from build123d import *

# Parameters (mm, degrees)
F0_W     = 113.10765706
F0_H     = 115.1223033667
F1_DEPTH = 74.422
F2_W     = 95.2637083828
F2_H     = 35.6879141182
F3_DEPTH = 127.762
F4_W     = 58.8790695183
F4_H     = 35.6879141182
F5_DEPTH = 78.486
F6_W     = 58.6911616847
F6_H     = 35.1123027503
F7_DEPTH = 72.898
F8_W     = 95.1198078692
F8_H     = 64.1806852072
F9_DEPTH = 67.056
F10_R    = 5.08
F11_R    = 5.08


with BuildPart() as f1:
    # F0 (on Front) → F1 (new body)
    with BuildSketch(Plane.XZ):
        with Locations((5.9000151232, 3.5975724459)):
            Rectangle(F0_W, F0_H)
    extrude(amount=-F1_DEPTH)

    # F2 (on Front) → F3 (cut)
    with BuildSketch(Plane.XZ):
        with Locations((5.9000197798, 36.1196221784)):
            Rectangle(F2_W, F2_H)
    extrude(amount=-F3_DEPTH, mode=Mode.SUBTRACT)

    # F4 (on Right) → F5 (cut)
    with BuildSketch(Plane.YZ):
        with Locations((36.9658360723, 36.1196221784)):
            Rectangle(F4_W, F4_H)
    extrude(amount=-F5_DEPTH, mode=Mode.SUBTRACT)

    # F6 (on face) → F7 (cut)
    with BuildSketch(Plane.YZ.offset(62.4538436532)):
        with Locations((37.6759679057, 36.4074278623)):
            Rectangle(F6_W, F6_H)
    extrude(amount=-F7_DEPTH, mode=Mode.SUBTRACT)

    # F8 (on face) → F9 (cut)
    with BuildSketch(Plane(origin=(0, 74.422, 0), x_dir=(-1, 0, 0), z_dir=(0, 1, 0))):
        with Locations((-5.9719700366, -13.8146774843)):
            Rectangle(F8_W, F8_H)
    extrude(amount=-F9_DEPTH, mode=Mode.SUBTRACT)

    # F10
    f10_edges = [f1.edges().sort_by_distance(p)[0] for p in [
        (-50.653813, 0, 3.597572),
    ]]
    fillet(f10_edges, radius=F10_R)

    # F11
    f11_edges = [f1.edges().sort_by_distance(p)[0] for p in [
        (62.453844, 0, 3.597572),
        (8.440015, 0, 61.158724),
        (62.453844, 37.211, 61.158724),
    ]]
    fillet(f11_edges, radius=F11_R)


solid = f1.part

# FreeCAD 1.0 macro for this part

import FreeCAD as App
import Part
import Sketcher

V = App.Vector
Q = App.Units.Quantity


def edges_at(feature, points):
    """Names of the edges that pass closest to the given points."""
    edges = feature.Shape.Edges
    near = lambda p: min(range(len(edges)), key=lambda i: edges[i].distToShape(Part.Vertex(*p))[0])
    return sorted({f"Edge{near(p) + 1}" for p in points})


def add_polygon(sketch, points):
    """Adds a closed chain of lines whose ends are joined by coincident constraints."""
    first, n = sketch.GeometryCount, len(points)
    for a, b in zip(points, points[1:] + points[:1]):
        sketch.addGeometry(Part.LineSegment(App.Vector(*a, 0), App.Vector(*b, 0)), False)
    for i in range(n):
        sketch.addConstraint(Sketcher.Constraint("Coincident", first + i, 2, first + (i + 1) % n, 1))

doc = App.newDocument("Part")
params = doc.addObject("Spreadsheet::Sheet", "Params")
for row, (alias, value) in enumerate([
    ("pad1_length", "2.93 in"),
    ("pocket1_length", "5.03 in"),
    ("pocket2_length", "3.09 in"),
    ("pocket3_length", "2.87 in"),
    ("pocket4_length", "2.64 in"),
    ("fillet_radius", "0.2 in"),
    ("fillet2_radius", "0.2 in"),
], start=1):
    params.set(f"A{row}", alias)
    params.set(f"B{row}", "=" + value)
    params.setAlias(f"B{row}", alias)

body = doc.addObject("PartDesign::Body", "Body")

# Sketch on XZ plane
sketch1 = body.newObject("Sketcher::SketchObject", "Sketch")
sketch1.AttachmentSupport = (doc.getObject("XZ_Plane"), [""])
sketch1.MapMode = "FlatFace"
add_polygon(sketch1, [(-51, 61), (-51, -54), (62, -54), (62, 61)])  # lines 0-3
sketch1.addConstraint(Sketcher.Constraint("Vertical", 0))
sketch1.addConstraint(Sketcher.Constraint("Horizontal", 1))
sketch1.addConstraint(Sketcher.Constraint("Vertical", 2))
sketch1.addConstraint(Sketcher.Constraint("Horizontal", 3))
sketch1.addConstraint(Sketcher.Constraint("DistanceX", 1, 1, 1, 2, Q("113.107657 mm")))
sketch1.addConstraint(Sketcher.Constraint("DistanceY", 0, 2, 0, 1, Q("115.122303 mm")))
sketch1.addConstraint(Sketcher.Constraint("DistanceY", 0, 2, -1, 1, Q("53.963579 mm")))
sketch1.addConstraint(Sketcher.Constraint("DistanceX", 0, 2, -1, 1, Q("50.653813 mm")))
pad1 = body.newObject("PartDesign::Pad", "Pad")
pad1.Profile = sketch1
pad1.setExpression("Length", "Params.pad1_length")
pad1.Reversed = True

# Sketch on XZ plane
sketch2 = body.newObject("Sketcher::SketchObject", "Sketch001")
sketch2.AttachmentSupport = (doc.getObject("XZ_Plane"), [""])
sketch2.MapMode = "FlatFace"
add_polygon(sketch2, [(-42, 54), (-42, 18), (54, 18), (54, 54)])  # lines 0-3
sketch2.addConstraint(Sketcher.Constraint("Vertical", 0))
sketch2.addConstraint(Sketcher.Constraint("Horizontal", 1))
sketch2.addConstraint(Sketcher.Constraint("Vertical", 2))
sketch2.addConstraint(Sketcher.Constraint("Horizontal", 3))
sketch2.addConstraint(Sketcher.Constraint("DistanceX", 1, 1, 1, 2, Q("95.263708 mm")))
sketch2.addConstraint(Sketcher.Constraint("DistanceY", 0, 2, 0, 1, Q("35.687914 mm")))
sketch2.addConstraint(Sketcher.Constraint("DistanceY", -1, 1, 2, 2, Q("53.963579 mm")))
sketch2.addConstraint(Sketcher.Constraint("DistanceX", 0, 2, -1, 1, Q("41.731834 mm")))
pocket1 = body.newObject("PartDesign::Pocket", "Pocket")
pocket1.Profile = sketch2
pocket1.setExpression("Length", "Params.pocket1_length")

# Sketch on YZ plane
sketch3 = body.newObject("Sketcher::SketchObject", "Sketch002")
sketch3.AttachmentSupport = (doc.getObject("YZ_Plane"), [""])
sketch3.MapMode = "FlatFace"
add_polygon(sketch3, [(8, 54), (8, 18), (66, 18), (66, 54)])  # lines 0-3
sketch3.addConstraint(Sketcher.Constraint("Vertical", 0))
sketch3.addConstraint(Sketcher.Constraint("Horizontal", 1))
sketch3.addConstraint(Sketcher.Constraint("Vertical", 2))
sketch3.addConstraint(Sketcher.Constraint("Horizontal", 3))
sketch3.addConstraint(Sketcher.Constraint("DistanceX", 1, 1, 1, 2, Q("58.87907 mm")))
sketch3.addConstraint(Sketcher.Constraint("DistanceX", -1, 1, 0, 2, Q("7.526301 mm")))
sketch3.addConstraint(Sketcher.Constraint("DistanceY", 0, 2, 0, 1, Q("35.687914 mm")))
sketch3.addConstraint(Sketcher.Constraint("DistanceY", -1, 1, 2, 2, Q("53.963579 mm")))
pocket2 = body.newObject("PartDesign::Pocket", "Pocket001")
pocket2.Profile = sketch3
pocket2.setExpression("Length", "Params.pocket2_length")

# Sketch on YZ plane
sketch4 = body.newObject("Sketcher::SketchObject", "Sketch003")
sketch4.AttachmentSupport = (doc.getObject("YZ_Plane"), [""])
sketch4.MapMode = "FlatFace"
sketch4.AttachmentOffset = App.Placement(V(0, 0, 62.453844), App.Rotation())
add_polygon(sketch4, [(8, 54), (8, 19), (67, 19), (67, 54)])  # lines 0-3
sketch4.addConstraint(Sketcher.Constraint("Vertical", 0))
sketch4.addConstraint(Sketcher.Constraint("Horizontal", 1))
sketch4.addConstraint(Sketcher.Constraint("Vertical", 2))
sketch4.addConstraint(Sketcher.Constraint("Horizontal", 3))
sketch4.addConstraint(Sketcher.Constraint("DistanceX", 1, 1, 1, 2, Q("58.691162 mm")))
sketch4.addConstraint(Sketcher.Constraint("DistanceY", 0, 2, 0, 1, Q("35.112303 mm")))
sketch4.addConstraint(Sketcher.Constraint("DistanceX", -1, 1, 1, 2, Q("67.021549 mm")))
sketch4.addConstraint(Sketcher.Constraint("DistanceY", -1, 1, 2, 2, Q("53.963579 mm")))
pocket3 = body.newObject("PartDesign::Pocket", "Pocket002")
pocket3.Profile = sketch4
pocket3.setExpression("Length", "Params.pocket3_length")

# Sketch on XZ plane
sketch5 = body.newObject("Sketcher::SketchObject", "Sketch004")
sketch5.AttachmentSupport = (doc.getObject("XZ_Plane"), [""])
sketch5.MapMode = "FlatFace"
sketch5.AttachmentOffset = App.Placement(V(0, 0, -2.93 * 25.4), App.Rotation())
add_polygon(sketch5, [(54, 18), (54, -46), (-42, -46), (-42, 18)])  # lines 0-3
sketch5.addConstraint(Sketcher.Constraint("Vertical", 0))
sketch5.addConstraint(Sketcher.Constraint("Horizontal", 1))
sketch5.addConstraint(Sketcher.Constraint("Vertical", 2))
sketch5.addConstraint(Sketcher.Constraint("Horizontal", 3))
sketch5.addConstraint(Sketcher.Constraint("DistanceX", 1, 2, 1, 1, Q("95.119808 mm")))
sketch5.addConstraint(Sketcher.Constraint("DistanceY", 0, 2, 0, 1, Q("64.180685 mm")))
sketch5.addConstraint(Sketcher.Constraint("DistanceY", 0, 2, -1, 1, Q("45.90502 mm")))
sketch5.addConstraint(Sketcher.Constraint("DistanceX", -1, 1, 0, 2, Q("53.531874 mm")))
pocket4 = body.newObject("PartDesign::Pocket", "Pocket003")
pocket4.Profile = sketch5
pocket4.setExpression("Length", "Params.pocket4_length")
pocket4.Reversed = True
doc.recompute()

fillet = body.newObject("PartDesign::Fillet", "Fillet")
fillet.Base = (pocket4, edges_at(pocket4, [(-50.654, 0, 3.598)]))
fillet.setExpression("Radius", "Params.fillet_radius")
doc.recompute()

fillet2 = body.newObject("PartDesign::Fillet", "Fillet001")
fillet2.Base = (fillet, edges_at(fillet, [(62.454, 0, 3.598), (8.44, 0, 61.159), (62.454, 37.211, 61.159)]))
fillet2.setExpression("Radius", "Params.fillet2_radius")

doc.recompute()
